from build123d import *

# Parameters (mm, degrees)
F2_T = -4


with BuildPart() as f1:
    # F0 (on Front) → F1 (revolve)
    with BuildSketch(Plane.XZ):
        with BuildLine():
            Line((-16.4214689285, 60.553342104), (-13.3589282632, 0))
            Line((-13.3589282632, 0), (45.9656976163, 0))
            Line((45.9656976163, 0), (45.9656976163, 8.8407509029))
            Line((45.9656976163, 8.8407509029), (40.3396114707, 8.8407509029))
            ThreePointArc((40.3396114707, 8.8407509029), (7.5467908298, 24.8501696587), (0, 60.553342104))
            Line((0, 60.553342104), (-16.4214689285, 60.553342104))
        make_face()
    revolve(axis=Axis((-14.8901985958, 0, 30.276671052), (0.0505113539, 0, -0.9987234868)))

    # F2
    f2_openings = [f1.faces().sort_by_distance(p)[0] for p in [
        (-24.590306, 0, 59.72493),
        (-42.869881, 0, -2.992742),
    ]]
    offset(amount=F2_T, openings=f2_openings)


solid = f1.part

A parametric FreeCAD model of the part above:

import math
import FreeCAD as App
import Part
import Sketcher

V = App.Vector
Q = App.Units.Quantity


def faces_at(feature, points):
    """Names of the faces that lie closest to the given points."""
    faces = feature.Shape.Faces
    near = lambda p: min(range(len(faces)), key=lambda i: faces[i].distToShape(Part.Vertex(*p))[0])
    return sorted({f"Face{near(p) + 1}" for p in points})

doc = App.newDocument("Part")
body = doc.addObject("PartDesign::Body", "Body")

# Sketch on XZ plane
sketch1 = body.newObject("Sketcher::SketchObject", "Sketch")
sketch1.AttachmentSupport = (doc.getObject("XZ_Plane"), [""])
sketch1.MapMode = "FlatFace"
sketch1.addGeometry([
    Part.LineSegment(V(-16, 61, 0), V(-13, 0, 0)),  # 0
    Part.LineSegment(V(-13, 0, 0), V(46, 0, 0)),  # 1
    Part.LineSegment(V(46, 0, 0), V(46, 9, 0)),  # 2
    Part.LineSegment(V(46, 9, 0), V(40, 9, 0)),  # 3
    Part.ArcOfCircle(Part.Circle(V(40, 50, 0), V(0, 0, 1), 42), math.radians(166), math.radians(270)),  # 4
    Part.LineSegment(V(0, 61, 0), V(-16, 61, 0)),  # 5
], False)
sketch1.addGeometry(Part.LineSegment(V(-16, 61, 0), V(-13, -3, 0)), True)  # axis
sketch1.addConstraint([
    Sketcher.Constraint("Coincident", 0, 2, 1, 1),
    Sketcher.Constraint("Coincident", 1, 2, 2, 1),
    Sketcher.Constraint("Coincident", 2, 2, 3, 1),
    Sketcher.Constraint("Tangent", 3, 2, 4, 2),
    Sketcher.Constraint("Coincident", 4, 1, 5, 1),
    Sketcher.Constraint("Coincident", 5, 2, 0, 1),
    Sketcher.Constraint("Horizontal", 1),
    Sketcher.Constraint("Vertical", 2),
    Sketcher.Constraint("Horizontal", 3),
    Sketcher.Constraint("Horizontal", 5),
    Sketcher.Constraint("Coincident", 6, 1, 5, 2),
    Sketcher.Constraint("PointOnObject", 0, 2, -1),
    Sketcher.Constraint("PointOnObject", 4, 1, -2),
    Sketcher.Constraint("Parallel", 0, 6),
    Sketcher.Constraint("Radius", 4, Q("41.590222 mm")),
    Sketcher.Constraint("DistanceX", 5, 2, 5, 1, Q("16.421469 mm")),
    Sketcher.Constraint("DistanceY", 2, 1, 2, 2, Q("8.840751 mm")),
    Sketcher.Constraint("DistanceX", 5, 2, 6, 2, Q("3.213901 mm")),
    Sketcher.Constraint("Distance", 0, Q("60.630738 mm")),
    Sketcher.Constraint("DistanceX", 1, 1, 1, 2, Q("59.324626 mm")),
    Sketcher.Constraint("DistanceX", 3, 2, 3, 1, Q("5.626086 mm")),
])
revolution = body.newObject("PartDesign::Revolution", "Revolution")
revolution.Profile = sketch1
revolution.ReferenceAxis = (sketch1, ["Axis0"])
revolution.Angle = 360
doc.recompute()

thickness = body.newObject("PartDesign::Thickness", "Thickness")
thickness.Base = (revolution, faces_at(revolution, [(-24.59, 0, 59.725), (-42.87, 0, -2.993)]))
thickness.Value = 4
thickness.Reversed = True
thickness.Join = "Arc"

doc.recompute()
